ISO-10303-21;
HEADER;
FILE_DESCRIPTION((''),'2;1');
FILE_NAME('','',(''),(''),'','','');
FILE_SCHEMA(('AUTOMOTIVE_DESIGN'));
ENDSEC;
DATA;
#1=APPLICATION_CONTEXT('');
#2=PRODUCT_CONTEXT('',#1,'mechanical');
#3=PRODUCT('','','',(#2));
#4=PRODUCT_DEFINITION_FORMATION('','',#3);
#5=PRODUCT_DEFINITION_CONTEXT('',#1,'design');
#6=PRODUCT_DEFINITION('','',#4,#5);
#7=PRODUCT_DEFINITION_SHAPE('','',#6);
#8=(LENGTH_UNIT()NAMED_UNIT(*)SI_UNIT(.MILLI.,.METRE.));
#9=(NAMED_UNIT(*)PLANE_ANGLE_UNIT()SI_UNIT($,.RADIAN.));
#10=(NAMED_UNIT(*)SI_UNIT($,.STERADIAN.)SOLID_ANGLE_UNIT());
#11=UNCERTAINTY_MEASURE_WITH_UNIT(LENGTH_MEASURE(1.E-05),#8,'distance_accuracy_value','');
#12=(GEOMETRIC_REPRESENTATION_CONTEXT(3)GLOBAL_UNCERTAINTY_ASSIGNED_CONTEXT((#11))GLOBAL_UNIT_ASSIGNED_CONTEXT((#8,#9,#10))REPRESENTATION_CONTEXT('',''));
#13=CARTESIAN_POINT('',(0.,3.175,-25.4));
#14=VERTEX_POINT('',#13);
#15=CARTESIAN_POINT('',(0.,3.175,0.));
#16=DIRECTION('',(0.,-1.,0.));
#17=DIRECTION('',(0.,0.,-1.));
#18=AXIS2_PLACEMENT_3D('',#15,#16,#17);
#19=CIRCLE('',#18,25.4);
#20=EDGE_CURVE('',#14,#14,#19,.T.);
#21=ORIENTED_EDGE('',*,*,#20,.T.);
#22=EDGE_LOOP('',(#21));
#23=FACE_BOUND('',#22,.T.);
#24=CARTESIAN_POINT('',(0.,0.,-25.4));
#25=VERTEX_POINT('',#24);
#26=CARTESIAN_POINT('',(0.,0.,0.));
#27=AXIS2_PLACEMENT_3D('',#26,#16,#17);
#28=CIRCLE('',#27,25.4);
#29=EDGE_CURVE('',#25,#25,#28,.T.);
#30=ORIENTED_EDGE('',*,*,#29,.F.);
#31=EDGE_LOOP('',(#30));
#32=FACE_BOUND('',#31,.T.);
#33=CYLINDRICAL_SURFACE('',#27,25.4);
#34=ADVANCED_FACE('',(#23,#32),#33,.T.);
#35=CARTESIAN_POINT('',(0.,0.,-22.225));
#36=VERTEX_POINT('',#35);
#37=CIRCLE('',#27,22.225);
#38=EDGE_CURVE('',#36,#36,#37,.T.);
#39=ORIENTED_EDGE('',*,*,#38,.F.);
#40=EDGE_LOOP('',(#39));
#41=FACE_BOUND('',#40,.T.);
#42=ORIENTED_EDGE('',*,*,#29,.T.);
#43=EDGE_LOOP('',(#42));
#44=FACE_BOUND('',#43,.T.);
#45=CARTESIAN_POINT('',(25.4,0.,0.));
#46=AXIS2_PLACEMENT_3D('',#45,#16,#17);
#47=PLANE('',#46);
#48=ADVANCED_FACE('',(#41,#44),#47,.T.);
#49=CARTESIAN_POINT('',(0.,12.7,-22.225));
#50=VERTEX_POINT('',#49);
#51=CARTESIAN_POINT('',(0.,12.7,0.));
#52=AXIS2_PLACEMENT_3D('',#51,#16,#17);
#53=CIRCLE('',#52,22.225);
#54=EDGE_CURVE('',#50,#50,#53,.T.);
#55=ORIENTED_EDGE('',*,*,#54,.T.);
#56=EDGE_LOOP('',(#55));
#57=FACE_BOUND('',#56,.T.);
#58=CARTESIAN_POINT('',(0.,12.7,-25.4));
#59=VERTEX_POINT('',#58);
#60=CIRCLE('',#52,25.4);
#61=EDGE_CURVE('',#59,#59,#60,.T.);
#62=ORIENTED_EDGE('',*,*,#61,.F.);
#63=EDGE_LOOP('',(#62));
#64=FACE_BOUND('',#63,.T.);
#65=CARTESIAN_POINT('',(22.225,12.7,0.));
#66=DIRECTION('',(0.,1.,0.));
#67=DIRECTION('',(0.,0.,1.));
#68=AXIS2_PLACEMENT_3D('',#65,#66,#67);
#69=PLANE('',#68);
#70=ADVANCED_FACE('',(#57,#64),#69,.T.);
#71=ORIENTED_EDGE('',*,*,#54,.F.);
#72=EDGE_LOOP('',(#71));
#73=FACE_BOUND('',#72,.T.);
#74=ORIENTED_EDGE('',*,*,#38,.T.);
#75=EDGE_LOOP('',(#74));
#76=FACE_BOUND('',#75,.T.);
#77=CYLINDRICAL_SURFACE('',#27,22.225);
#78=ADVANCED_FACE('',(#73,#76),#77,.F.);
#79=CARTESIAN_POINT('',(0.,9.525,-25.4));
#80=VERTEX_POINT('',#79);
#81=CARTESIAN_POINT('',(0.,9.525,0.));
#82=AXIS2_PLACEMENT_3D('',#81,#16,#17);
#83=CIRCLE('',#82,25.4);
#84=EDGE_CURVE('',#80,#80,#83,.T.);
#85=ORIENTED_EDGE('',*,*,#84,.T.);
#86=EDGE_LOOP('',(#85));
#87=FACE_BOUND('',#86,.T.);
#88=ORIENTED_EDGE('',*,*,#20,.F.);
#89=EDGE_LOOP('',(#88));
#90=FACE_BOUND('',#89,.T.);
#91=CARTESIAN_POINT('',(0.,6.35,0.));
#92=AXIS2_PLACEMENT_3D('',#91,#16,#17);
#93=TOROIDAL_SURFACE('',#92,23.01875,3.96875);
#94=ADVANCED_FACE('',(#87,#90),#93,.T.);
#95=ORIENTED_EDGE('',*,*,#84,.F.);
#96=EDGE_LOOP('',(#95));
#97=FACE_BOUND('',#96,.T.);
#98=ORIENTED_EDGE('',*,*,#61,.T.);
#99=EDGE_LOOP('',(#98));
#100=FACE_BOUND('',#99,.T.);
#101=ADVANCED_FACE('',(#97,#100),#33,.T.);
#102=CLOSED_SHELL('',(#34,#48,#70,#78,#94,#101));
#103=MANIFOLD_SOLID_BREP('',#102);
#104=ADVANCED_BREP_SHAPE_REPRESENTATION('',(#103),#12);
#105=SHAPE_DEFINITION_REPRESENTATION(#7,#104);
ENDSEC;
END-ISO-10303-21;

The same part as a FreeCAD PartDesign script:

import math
import FreeCAD as App
import Part
import Sketcher
Q = App.Units.Quantity

doc = App.newDocument("Part")
params = doc.addObject("Spreadsheet::Sheet", "Params")
for row, (alias, value) in enumerate([
    ("sketch1_height", "0.5 in"),
    ("sketch1_radius", "0.15625 in"),
    ("sketch1_width", "0.125 in"),
    ("revolution_angle", "360 deg"),
], start=1):
    params.set(f"A{row}", alias)
    params.set(f"B{row}", "=" + value)
    params.setAlias(f"B{row}", alias)

body = doc.addObject("PartDesign::Body", "Body")

# Sketch on XY plane
sketch1 = body.newObject("Sketcher::SketchObject", "Sketch")
sketch1.AttachmentSupport = (doc.getObject("XY_Plane"), [""])
sketch1.MapMode = "FlatFace"
sketch1.addGeometry([
    Part.LineSegment(App.Vector(22.225, 0, 0), App.Vector(25.4, 0, 0)),  # 0
    Part.LineSegment(App.Vector(25.4, 0, 0), App.Vector(25.4, 3.175, 0)),  # 1
    Part.ArcOfCircle(Part.Circle(App.Vector(23.01875, 6.35, 0), App.Vector(0, 0, 1), 3.96875), math.radians(-53.130102), math.radians(53.130102)),  # 2
    Part.LineSegment(App.Vector(25.4, 9.525, 0), App.Vector(25.4, 12.7, 0)),  # 3
    Part.LineSegment(App.Vector(25.4, 12.7, 0), App.Vector(22.225, 12.7, 0)),  # 4
    Part.LineSegment(App.Vector(22.225, 12.7, 0), App.Vector(22.225, 0, 0)),  # 5
], False)
sketch1.addConstraint([
    Sketcher.Constraint("Coincident", 0, 2, 1, 1),
    Sketcher.Constraint("Coincident", 1, 2, 2, 1),
    Sketcher.Constraint("Coincident", 2, 2, 3, 1),
    Sketcher.Constraint("Coincident", 3, 2, 4, 1),
    Sketcher.Constraint("Coincident", 4, 2, 5, 1),
    Sketcher.Constraint("Coincident", 5, 2, 0, 1),
    Sketcher.Constraint("Horizontal", 0),
    Sketcher.Constraint("Vertical", 1),
    Sketcher.Constraint("Vertical", 3),
    Sketcher.Constraint("Horizontal", 4),
    Sketcher.Constraint("Vertical", 5),
    Sketcher.Constraint("PointOnObject", 0, 2, -1),
    Sketcher.Constraint("Vertical", 1, 2, 2, 2),
    Sketcher.Constraint("Equal", 4, 1),
    Sketcher.Constraint("Equal", 1, 3),
    Sketcher.Constraint("DistanceY", 5, 2, 5, 1, Q("0.5 in")),
    Sketcher.Constraint("DistanceX", -1, 1, 0, 2, Q("1 in")),
    Sketcher.Constraint("Radius", 2, Q("0.15625 in")),
    Sketcher.Constraint("DistanceX", 0, 1, 0, 2, Q("0.125 in")),
])
sketch1.setExpression("Constraints[15]", "Params.sketch1_height")
sketch1.setExpression("Constraints[17]", "Params.sketch1_radius")
sketch1.setExpression("Constraints[18]", "Params.sketch1_width")
revolution = body.newObject("PartDesign::Revolution", "Revolution")
revolution.Profile = sketch1
revolution.ReferenceAxis = (sketch1, ["V_Axis"])
revolution.setExpression("Angle", "Params.revolution_angle")

doc.recompute()
